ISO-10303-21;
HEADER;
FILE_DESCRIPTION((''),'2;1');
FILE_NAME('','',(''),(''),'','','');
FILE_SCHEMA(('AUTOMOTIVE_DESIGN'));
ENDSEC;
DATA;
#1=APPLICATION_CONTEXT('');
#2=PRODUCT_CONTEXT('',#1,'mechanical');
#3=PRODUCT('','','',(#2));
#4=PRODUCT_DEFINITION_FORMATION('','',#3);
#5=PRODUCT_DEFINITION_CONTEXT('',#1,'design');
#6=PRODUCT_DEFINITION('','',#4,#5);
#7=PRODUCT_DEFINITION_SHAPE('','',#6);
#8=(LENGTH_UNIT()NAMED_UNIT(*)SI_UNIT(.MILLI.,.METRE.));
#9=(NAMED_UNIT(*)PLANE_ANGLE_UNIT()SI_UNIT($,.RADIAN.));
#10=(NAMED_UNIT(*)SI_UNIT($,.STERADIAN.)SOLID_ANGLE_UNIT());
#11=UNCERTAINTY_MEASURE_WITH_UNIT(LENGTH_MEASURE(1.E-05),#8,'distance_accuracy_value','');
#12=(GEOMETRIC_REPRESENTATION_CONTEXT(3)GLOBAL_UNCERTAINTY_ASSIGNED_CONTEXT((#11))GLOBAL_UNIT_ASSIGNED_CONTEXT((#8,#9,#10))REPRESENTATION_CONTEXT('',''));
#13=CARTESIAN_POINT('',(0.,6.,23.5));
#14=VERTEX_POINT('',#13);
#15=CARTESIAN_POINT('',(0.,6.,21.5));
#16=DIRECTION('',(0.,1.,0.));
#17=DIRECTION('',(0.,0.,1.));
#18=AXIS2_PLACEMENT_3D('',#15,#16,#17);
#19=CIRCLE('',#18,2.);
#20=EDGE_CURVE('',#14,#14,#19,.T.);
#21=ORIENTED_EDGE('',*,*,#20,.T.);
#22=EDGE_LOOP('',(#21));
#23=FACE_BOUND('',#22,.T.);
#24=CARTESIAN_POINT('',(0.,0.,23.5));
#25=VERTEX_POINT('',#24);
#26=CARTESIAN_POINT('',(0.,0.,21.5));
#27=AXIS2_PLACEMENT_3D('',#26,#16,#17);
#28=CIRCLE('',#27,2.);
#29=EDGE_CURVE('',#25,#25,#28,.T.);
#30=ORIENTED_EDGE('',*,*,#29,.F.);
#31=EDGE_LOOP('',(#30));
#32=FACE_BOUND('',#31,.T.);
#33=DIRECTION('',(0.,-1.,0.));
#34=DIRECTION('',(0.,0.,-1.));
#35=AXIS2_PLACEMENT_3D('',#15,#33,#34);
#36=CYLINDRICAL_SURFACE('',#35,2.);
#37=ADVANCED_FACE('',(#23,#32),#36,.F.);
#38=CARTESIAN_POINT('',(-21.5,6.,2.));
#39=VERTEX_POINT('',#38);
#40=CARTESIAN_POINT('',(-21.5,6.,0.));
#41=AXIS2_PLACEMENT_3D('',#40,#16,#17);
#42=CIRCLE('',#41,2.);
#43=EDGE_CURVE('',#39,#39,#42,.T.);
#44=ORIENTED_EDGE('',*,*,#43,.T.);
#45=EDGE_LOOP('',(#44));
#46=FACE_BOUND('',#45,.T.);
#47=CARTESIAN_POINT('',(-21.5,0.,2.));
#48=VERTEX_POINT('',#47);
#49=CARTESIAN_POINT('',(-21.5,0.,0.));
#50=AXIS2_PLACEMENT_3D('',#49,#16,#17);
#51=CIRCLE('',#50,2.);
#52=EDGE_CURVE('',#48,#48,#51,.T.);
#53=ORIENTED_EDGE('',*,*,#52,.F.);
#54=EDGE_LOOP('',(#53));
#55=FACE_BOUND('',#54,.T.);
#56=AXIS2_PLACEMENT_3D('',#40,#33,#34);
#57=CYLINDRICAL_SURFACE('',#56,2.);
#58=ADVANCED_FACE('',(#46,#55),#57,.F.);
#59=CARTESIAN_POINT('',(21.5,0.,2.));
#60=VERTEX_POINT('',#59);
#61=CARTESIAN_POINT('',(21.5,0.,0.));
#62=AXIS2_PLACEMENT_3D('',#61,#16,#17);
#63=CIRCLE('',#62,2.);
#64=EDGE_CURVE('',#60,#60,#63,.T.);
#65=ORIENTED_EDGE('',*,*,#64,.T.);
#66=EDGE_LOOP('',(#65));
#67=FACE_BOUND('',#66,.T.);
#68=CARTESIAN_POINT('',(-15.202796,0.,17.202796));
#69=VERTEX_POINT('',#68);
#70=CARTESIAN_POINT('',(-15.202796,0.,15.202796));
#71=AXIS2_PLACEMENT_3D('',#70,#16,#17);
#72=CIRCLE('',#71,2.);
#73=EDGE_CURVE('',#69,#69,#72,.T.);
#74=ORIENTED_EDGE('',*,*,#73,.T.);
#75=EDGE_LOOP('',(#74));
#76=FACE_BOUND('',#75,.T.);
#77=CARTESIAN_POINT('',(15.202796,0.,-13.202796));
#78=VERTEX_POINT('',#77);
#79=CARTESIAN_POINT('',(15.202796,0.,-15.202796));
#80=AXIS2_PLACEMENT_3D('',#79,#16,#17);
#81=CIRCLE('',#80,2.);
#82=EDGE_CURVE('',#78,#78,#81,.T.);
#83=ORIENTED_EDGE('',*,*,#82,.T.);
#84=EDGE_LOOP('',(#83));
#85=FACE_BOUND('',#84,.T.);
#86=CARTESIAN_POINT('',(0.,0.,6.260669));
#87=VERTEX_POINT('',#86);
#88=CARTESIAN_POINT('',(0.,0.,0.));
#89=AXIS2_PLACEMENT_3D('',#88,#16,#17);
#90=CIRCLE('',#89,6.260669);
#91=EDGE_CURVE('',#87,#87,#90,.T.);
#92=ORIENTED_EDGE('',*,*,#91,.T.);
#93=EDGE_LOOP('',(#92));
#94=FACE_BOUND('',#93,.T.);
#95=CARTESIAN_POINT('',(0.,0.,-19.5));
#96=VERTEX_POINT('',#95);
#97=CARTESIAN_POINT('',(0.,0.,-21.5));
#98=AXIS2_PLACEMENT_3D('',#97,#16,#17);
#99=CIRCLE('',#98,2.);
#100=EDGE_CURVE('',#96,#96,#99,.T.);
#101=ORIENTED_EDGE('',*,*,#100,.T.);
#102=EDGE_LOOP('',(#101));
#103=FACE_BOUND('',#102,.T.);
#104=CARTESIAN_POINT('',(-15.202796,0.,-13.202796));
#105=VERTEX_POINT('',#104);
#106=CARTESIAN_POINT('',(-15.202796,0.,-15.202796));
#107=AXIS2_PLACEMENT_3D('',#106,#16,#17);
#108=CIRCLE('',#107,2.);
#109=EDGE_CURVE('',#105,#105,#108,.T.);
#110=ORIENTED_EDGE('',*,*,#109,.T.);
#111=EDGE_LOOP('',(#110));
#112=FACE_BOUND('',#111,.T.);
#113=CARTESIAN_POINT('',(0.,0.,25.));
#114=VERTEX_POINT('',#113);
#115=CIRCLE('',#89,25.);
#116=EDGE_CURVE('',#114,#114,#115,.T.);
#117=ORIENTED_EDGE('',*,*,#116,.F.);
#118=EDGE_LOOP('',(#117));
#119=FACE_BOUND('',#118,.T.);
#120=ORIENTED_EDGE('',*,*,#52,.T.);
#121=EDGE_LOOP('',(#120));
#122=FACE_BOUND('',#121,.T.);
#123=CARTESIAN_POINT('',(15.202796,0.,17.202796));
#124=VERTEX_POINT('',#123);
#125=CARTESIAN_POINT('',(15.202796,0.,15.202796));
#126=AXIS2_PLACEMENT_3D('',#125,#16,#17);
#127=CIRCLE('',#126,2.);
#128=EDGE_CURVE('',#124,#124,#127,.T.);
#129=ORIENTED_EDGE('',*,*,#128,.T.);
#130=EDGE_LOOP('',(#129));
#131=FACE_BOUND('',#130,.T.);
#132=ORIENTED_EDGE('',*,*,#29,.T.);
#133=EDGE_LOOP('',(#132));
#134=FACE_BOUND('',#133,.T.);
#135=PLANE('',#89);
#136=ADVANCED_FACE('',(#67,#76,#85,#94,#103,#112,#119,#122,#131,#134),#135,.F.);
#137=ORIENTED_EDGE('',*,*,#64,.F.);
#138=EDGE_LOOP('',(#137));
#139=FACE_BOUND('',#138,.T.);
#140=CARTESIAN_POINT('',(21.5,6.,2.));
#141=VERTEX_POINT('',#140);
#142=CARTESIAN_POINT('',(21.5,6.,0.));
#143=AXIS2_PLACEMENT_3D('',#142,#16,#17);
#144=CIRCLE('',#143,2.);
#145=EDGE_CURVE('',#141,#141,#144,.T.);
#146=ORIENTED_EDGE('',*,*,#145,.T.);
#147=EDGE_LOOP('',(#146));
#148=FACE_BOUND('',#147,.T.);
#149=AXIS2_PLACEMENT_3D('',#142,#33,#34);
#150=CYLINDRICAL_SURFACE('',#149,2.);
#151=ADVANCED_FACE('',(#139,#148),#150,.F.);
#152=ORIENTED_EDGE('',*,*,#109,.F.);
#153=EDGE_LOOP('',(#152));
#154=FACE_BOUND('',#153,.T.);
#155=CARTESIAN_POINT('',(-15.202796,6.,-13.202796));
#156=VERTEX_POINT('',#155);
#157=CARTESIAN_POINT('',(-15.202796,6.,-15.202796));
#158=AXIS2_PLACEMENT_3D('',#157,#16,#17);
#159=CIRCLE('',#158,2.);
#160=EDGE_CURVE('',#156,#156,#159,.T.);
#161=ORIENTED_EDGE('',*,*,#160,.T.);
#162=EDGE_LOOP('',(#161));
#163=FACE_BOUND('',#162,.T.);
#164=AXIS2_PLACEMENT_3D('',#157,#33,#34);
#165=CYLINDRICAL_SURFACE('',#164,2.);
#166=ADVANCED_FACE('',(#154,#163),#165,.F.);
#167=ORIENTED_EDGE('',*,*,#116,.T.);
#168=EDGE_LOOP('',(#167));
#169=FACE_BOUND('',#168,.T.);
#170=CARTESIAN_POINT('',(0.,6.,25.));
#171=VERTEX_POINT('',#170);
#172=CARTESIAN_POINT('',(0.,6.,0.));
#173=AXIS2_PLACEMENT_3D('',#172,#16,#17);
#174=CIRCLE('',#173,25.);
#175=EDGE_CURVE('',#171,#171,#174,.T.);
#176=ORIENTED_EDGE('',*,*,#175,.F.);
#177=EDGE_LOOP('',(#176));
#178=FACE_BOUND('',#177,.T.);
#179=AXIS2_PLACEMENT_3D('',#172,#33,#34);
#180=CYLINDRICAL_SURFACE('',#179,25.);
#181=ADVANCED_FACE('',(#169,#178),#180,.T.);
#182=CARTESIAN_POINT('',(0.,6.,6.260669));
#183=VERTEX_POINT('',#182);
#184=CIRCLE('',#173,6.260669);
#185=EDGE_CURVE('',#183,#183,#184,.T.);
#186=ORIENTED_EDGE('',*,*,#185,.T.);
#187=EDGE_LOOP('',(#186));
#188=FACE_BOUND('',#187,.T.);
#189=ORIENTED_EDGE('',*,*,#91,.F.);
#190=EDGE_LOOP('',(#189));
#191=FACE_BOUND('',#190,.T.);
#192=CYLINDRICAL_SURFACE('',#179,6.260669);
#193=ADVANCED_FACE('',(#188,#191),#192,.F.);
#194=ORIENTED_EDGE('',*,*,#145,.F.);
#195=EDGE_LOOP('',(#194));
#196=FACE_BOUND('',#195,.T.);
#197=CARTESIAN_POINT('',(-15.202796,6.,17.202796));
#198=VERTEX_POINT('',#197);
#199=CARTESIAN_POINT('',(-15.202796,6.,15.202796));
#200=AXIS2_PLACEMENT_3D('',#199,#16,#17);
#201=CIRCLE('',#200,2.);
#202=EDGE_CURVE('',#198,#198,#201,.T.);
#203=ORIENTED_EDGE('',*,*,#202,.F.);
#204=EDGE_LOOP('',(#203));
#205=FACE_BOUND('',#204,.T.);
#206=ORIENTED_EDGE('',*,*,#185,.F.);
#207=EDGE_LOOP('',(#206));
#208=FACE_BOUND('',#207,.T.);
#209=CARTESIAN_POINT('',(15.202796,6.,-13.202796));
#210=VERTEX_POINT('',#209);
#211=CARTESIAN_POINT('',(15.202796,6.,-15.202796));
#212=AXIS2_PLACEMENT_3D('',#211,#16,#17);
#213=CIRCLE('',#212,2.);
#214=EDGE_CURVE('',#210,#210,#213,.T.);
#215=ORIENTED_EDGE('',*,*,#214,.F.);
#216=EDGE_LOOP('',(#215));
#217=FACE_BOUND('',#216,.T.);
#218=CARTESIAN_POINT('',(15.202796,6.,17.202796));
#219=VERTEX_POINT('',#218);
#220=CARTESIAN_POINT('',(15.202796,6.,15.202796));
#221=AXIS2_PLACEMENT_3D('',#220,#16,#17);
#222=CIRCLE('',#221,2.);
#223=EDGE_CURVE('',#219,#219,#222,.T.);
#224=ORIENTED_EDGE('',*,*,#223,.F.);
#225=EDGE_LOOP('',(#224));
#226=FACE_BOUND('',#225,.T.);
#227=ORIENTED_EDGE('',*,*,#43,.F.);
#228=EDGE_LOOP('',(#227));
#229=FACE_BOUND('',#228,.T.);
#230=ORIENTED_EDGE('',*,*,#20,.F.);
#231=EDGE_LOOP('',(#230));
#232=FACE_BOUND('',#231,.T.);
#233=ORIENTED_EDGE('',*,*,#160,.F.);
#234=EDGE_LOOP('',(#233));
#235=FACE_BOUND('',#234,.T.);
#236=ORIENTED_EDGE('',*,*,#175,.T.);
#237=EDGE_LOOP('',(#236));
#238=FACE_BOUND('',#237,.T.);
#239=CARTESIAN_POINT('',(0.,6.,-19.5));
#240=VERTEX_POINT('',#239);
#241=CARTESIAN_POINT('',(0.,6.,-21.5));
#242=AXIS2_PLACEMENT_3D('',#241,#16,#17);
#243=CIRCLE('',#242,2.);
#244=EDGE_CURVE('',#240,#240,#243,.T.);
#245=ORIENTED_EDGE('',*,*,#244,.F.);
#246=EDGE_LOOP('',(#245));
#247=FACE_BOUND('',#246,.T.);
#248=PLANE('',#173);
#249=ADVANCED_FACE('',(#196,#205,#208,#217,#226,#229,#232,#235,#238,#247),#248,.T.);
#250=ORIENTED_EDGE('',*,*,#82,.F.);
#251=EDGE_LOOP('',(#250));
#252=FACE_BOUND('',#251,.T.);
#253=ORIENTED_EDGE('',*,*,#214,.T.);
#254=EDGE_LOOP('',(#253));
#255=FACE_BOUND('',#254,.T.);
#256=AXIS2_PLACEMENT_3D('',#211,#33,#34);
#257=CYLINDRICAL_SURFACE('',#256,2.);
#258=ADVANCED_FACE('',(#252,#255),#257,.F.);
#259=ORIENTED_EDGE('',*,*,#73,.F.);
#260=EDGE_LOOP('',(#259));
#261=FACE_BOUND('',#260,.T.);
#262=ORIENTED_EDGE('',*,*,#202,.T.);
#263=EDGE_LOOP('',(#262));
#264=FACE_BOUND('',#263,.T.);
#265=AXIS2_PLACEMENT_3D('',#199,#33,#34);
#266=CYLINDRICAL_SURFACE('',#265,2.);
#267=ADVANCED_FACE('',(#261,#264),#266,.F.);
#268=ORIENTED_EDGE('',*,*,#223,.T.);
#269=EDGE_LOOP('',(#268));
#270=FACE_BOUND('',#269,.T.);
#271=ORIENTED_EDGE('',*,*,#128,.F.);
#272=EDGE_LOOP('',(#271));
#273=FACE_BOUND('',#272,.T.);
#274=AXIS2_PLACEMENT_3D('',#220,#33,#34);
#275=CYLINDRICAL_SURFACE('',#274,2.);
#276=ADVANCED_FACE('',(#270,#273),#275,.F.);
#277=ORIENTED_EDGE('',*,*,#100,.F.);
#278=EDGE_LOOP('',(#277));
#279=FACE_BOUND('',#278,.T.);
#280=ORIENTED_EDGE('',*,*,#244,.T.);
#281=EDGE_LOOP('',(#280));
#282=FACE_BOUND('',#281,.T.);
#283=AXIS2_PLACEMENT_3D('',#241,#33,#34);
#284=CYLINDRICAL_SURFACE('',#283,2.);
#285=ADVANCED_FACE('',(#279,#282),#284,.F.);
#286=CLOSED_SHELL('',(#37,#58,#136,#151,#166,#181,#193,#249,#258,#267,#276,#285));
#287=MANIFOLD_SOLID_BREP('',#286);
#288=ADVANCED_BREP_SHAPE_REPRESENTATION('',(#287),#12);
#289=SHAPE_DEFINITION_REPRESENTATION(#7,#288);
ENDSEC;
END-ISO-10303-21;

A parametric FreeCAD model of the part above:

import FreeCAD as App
import Part
import Sketcher
from FreeCAD import Vector

doc = App.newDocument("Part")
body = doc.addObject("PartDesign::Body", "Body")

sketch1 = body.newObject("Sketcher::SketchObject", "Sketch")
sketch1.AttachmentSupport = (doc.getObject("XZ_Plane"), [""])
sketch1.MapMode = "FlatFace"
sketch1.addGeometry(Part.Circle(Vector(0, 0, 0), Vector(0, 0, 1), 25), False)
sketch1.addGeometry(Part.Circle(Vector(-15.202796, 15.202796, 0), Vector(0, 0, 1), 2), False)
sketch1.addGeometry(Part.Circle(Vector(0, 21.5, 0), Vector(0, 0, 1), 2), False)
sketch1.addGeometry(Part.Circle(Vector(15.202796, 15.202796, 0), Vector(0, 0, 1), 2), False)
sketch1.addGeometry(Part.Circle(Vector(-21.5, 0, 0), Vector(0, 0, 1), 2), False)
sketch1.addGeometry(Part.Circle(Vector(-15.202796, -15.202796, 0), Vector(0, 0, 1), 2), False)
sketch1.addGeometry(Part.Circle(Vector(0, 0, 0), Vector(0, 0, 1), 6.260669), False)
sketch1.addGeometry(Part.Circle(Vector(21.5, 0, 0), Vector(0, 0, 1), 2), False)
sketch1.addGeometry(Part.Circle(Vector(0, -21.5, 0), Vector(0, 0, 1), 2), False)
sketch1.addGeometry(Part.Circle(Vector(15.202796, -15.202796, 0), Vector(0, 0, 1), 2), False)
sketch1.addConstraint(Sketcher.Constraint("Coincident", 0, 3, -1, 1))
sketch1.addConstraint(Sketcher.Constraint("Coincident", 6, 3, -1, 1))
sketch1.addConstraint(Sketcher.Constraint("Equal", 1, 2))
sketch1.addConstraint(Sketcher.Constraint("Equal", 2, 3))
sketch1.addConstraint(Sketcher.Constraint("Equal", 3, 4))
sketch1.addConstraint(Sketcher.Constraint("Equal", 4, 5))
sketch1.addConstraint(Sketcher.Constraint("Equal", 5, 7))
sketch1.addConstraint(Sketcher.Constraint("Equal", 7, 8))
sketch1.addConstraint(Sketcher.Constraint("Equal", 8, 9))
sketch1.addConstraint(Sketcher.Constraint("Symmetric", 3, 3, 5, 3, -1, 1))
sketch1.addConstraint(Sketcher.Constraint("Symmetric", 4, 3, 7, 3, -1, 1))
sketch1.addConstraint(Sketcher.Constraint("Symmetric", 2, 3, 8, 3, -1, 1))
sketch1.addConstraint(Sketcher.Constraint("Symmetric", 1, 3, 9, 3, -1, 1))
sketch1.addConstraint(Sketcher.Constraint("Symmetric", 1, 3, 3, 3, -2))
sketch1.addConstraint(Sketcher.Constraint("PointOnObject", 2, 3, -2))
sketch1.addConstraint(Sketcher.Constraint("PointOnObject", 4, 3, -1))
sketch1.addConstraint(Sketcher.Constraint("Diameter", 0, 50.0))
sketch1.addConstraint(Sketcher.Constraint("Diameter", 1, 4.0))
sketch1.addConstraint(Sketcher.Constraint("DistanceY", -1, 1, 2, 3, 21.5))
sketch1.addConstraint(Sketcher.Constraint("DistanceX", 4, 3, -1, 1, 21.5))
sketch1.addConstraint(Sketcher.Constraint("Diameter", 6, 12.521337))
sketch1.addConstraint(Sketcher.Constraint("DistanceX", 1, 3, 3, 3, 30.405592))
sketch1.addConstraint(Sketcher.Constraint("DistanceY", 5, 3, 1, 3, 30.405592))
pad1 = body.newObject("PartDesign::Pad", "Pad")
pad1.Profile = sketch1
pad1.Length = 6
pad1.Reversed = True

doc.recompute()
